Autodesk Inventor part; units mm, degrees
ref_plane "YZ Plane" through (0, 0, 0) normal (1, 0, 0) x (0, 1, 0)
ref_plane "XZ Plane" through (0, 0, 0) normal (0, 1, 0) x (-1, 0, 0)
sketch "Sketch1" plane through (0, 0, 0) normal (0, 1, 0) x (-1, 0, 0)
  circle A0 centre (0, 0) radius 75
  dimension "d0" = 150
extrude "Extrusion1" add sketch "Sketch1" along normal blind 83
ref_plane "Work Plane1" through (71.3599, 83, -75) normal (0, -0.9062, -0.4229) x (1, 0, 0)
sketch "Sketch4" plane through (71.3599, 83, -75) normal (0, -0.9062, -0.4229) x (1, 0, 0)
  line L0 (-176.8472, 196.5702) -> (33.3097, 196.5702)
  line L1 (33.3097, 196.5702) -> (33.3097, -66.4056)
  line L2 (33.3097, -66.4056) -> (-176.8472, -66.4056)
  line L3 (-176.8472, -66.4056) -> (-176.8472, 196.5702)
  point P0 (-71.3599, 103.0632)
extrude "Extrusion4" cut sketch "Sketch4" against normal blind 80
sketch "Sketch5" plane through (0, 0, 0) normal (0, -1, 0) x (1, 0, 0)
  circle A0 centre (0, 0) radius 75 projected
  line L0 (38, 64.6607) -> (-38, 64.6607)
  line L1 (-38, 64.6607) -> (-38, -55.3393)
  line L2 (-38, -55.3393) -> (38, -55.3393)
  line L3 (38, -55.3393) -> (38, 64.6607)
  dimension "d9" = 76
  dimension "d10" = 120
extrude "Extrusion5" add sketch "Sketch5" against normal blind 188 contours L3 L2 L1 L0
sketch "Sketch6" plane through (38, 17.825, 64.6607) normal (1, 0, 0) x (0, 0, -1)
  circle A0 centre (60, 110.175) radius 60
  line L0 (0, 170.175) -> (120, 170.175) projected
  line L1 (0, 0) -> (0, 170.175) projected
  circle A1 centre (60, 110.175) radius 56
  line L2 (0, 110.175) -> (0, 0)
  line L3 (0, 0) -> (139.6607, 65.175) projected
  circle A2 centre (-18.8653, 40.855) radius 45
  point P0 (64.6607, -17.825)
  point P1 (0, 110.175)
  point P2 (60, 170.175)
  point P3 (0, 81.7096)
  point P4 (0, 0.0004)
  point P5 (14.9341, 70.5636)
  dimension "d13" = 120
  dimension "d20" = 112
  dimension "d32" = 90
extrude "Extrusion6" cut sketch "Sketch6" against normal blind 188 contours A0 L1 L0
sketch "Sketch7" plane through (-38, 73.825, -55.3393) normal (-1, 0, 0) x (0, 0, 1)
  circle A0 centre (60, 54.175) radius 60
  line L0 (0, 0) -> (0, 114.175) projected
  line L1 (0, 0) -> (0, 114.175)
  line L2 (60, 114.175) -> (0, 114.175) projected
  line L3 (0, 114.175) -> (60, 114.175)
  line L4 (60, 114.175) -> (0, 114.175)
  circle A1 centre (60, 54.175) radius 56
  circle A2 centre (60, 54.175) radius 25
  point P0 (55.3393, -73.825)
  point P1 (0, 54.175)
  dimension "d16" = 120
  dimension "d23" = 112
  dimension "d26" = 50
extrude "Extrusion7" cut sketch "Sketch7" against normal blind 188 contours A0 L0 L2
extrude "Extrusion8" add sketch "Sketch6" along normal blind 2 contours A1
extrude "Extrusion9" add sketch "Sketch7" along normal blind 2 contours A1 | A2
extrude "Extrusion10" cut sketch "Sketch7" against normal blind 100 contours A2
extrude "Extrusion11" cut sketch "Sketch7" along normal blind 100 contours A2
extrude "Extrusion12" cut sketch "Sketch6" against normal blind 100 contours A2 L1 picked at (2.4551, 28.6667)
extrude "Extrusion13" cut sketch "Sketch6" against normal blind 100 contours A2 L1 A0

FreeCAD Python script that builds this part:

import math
import FreeCAD as App
import Part
import Sketcher
Q = App.Units.Quantity

doc = App.newDocument("Part")
body = doc.addObject("PartDesign::Body", "Body")

# Sketch on XZ plane
sketch1 = body.newObject("Sketcher::SketchObject", "Sketch")
sketch1.AttachmentSupport = (doc.getObject("XZ_Plane"), [""])
sketch1.MapMode = "FlatFace"
sketch1.addGeometry(Part.Circle(App.Vector(0, 0, 0), App.Vector(0, 0, 1), 75), False)
sketch1.addConstraint(Sketcher.Constraint("Coincident", 0, 3, -1, 1))
sketch1.addConstraint(Sketcher.Constraint("Diameter", 0, Q("150 mm")))
pad1 = body.newObject("PartDesign::Pad", "Pad")
pad1.Profile = sketch1
pad1.Length = 83
pad1.Reversed = True

# Sketch on an angled plane
sketch2 = body.newObject("Sketcher::SketchObject", "Sketch001")
sketch2.Placement = App.Placement(App.Vector(71.3599, 83, -75), App.Rotation(App.Vector(1, 0, 0), App.Vector(0, -0.42289094, 0.906180585), App.Vector(0, -0.906180585, -0.42289094), "ZXY"))
sketch2.addGeometry(Part.LineSegment(App.Vector(33.3097, 196.5702, 0), App.Vector(-176.8472, 196.5702, 0)), False)
sketch2.addGeometry(Part.LineSegment(App.Vector(-176.8472, 196.5702, 0), App.Vector(-176.8472, -66.4056, 0)), False)
sketch2.addGeometry(Part.LineSegment(App.Vector(-176.8472, -66.4056, 0), App.Vector(33.3097, -66.4056, 0)), False)
sketch2.addGeometry(Part.LineSegment(App.Vector(33.3097, -66.4056, 0), App.Vector(33.3097, 196.5702, 0)), False)
sketch2.addConstraint(Sketcher.Constraint("Coincident", 0, 2, 1, 1))
sketch2.addConstraint(Sketcher.Constraint("Coincident", 1, 2, 2, 1))
sketch2.addConstraint(Sketcher.Constraint("Coincident", 2, 2, 3, 1))
sketch2.addConstraint(Sketcher.Constraint("Coincident", 3, 2, 0, 1))
sketch2.addConstraint(Sketcher.Constraint("Horizontal", 0))
sketch2.addConstraint(Sketcher.Constraint("Vertical", 1))
sketch2.addConstraint(Sketcher.Constraint("Horizontal", 2))
sketch2.addConstraint(Sketcher.Constraint("Vertical", 3))
sketch2.addConstraint(Sketcher.Constraint("DistanceX", 0, 2, 0, 1, Q("210.157 mm")))
sketch2.addConstraint(Sketcher.Constraint("DistanceY", 1, 2, 1, 1, Q("262.9758 mm")))
sketch2.addConstraint(Sketcher.Constraint("DistanceX", 0, 2, -1, 1, Q("176.8472 mm")))
sketch2.addConstraint(Sketcher.Constraint("DistanceY", -1, 1, 0, 2, Q("196.5702 mm")))
pocket1 = body.newObject("PartDesign::Pocket", "Pocket")
pocket1.Profile = sketch2
pocket1.Length = 80

# Sketch on XZ plane
sketch3 = body.newObject("Sketcher::SketchObject", "Sketch002")
sketch3.AttachmentSupport = (doc.getObject("XZ_Plane"), [""])
sketch3.MapMode = "FlatFace"
sketch3.addGeometry(Part.LineSegment(App.Vector(38, -55.3393, 0), App.Vector(38, 64.6607, 0)), False)
sketch3.addGeometry(Part.LineSegment(App.Vector(38, 64.6607, 0), App.Vector(-38, 64.6607, 0)), False)
sketch3.addGeometry(Part.LineSegment(App.Vector(-38, 64.6607, 0), App.Vector(-38, -55.3393, 0)), False)
sketch3.addGeometry(Part.LineSegment(App.Vector(-38, -55.3393, 0), App.Vector(38, -55.3393, 0)), False)
sketch3.addConstraint(Sketcher.Constraint("Coincident", 0, 2, 1, 1))
sketch3.addConstraint(Sketcher.Constraint("Coincident", 1, 2, 2, 1))
sketch3.addConstraint(Sketcher.Constraint("Coincident", 2, 2, 3, 1))
sketch3.addConstraint(Sketcher.Constraint("Coincident", 3, 2, 0, 1))
sketch3.addConstraint(Sketcher.Constraint("Vertical", 0))
sketch3.addConstraint(Sketcher.Constraint("Horizontal", 1))
sketch3.addConstraint(Sketcher.Constraint("Vertical", 2))
sketch3.addConstraint(Sketcher.Constraint("Horizontal", 3))
sketch3.addConstraint(Sketcher.Constraint("DistanceX", 1, 2, 1, 1, Q("76 mm")))
sketch3.addConstraint(Sketcher.Constraint("DistanceY", 0, 1, 0, 2, Q("120 mm")))
sketch3.addConstraint(Sketcher.Constraint("DistanceX", -1, 1, 0, 2, Q("38 mm")))
sketch3.addConstraint(Sketcher.Constraint("DistanceY", -1, 1, 0, 2, Q("64.6607 mm")))
pad2 = body.newObject("PartDesign::Pad", "Pad001")
pad2.Profile = sketch3
pad2.Length = 188
pad2.Reversed = True

# Sketch on YZ plane
sketch4 = body.newObject("Sketcher::SketchObject", "Sketch003")
sketch4.AttachmentSupport = (doc.getObject("YZ_Plane"), [""])
sketch4.MapMode = "FlatFace"
sketch4.AttachmentOffset = App.Placement(App.Vector(0, 0, 38), App.Rotation())
sketch4.addGeometry(Part.ArcOfCircle(Part.Circle(App.Vector(128, 4.6607, 0), App.Vector(0, 0, 1), 60), math.radians(0), math.radians(90)), False)
sketch4.addGeometry(Part.LineSegment(App.Vector(188, 4.6607, 0), App.Vector(188, 64.6607, 0)), False)
sketch4.addGeometry(Part.LineSegment(App.Vector(188, 64.6607, 0), App.Vector(128, 64.6607, 0)), False)
sketch4.addConstraint(Sketcher.Constraint("Tangent", 0, 1, 1, 1))
sketch4.addConstraint(Sketcher.Constraint("Coincident", 1, 2, 2, 1))
sketch4.addConstraint(Sketcher.Constraint("Tangent", 2, 2, 0, 2))
sketch4.addConstraint(Sketcher.Constraint("Vertical", 1))
sketch4.addConstraint(Sketcher.Constraint("Horizontal", 2))
sketch4.addConstraint(Sketcher.Constraint("Radius", 0, Q("60 mm")))
sketch4.addConstraint(Sketcher.Constraint("DistanceX", -1, 1, 0, 3, Q("128 mm")))
sketch4.addConstraint(Sketcher.Constraint("DistanceY", -1, 1, 0, 3, Q("4.6607 mm")))
pocket2 = body.newObject("PartDesign::Pocket", "Pocket001")
pocket2.Profile = sketch4
pocket2.Length = 188

# Sketch on YZ plane
sketch5 = body.newObject("Sketcher::SketchObject", "Sketch004")
sketch5.AttachmentSupport = (doc.getObject("YZ_Plane"), [""])
sketch5.MapMode = "FlatFace"
sketch5.AttachmentOffset = App.Placement(App.Vector(0, 0, -38), App.Rotation())
sketch5.addGeometry(Part.ArcOfCircle(Part.Circle(App.Vector(128, 4.6607, 0), App.Vector(0, 0, 1), 60), math.radians(-90), math.radians(0)), False)
sketch5.addGeometry(Part.LineSegment(App.Vector(188, 4.6607, 0), App.Vector(188, -55.3393, 0)), False)
sketch5.addGeometry(Part.LineSegment(App.Vector(188, -55.3393, 0), App.Vector(128, -55.3393, 0)), False)
sketch5.addConstraint(Sketcher.Constraint("Tangent", 0, 2, 1, 1))
sketch5.addConstraint(Sketcher.Constraint("Coincident", 1, 2, 2, 1))
sketch5.addConstraint(Sketcher.Constraint("Tangent", 2, 2, 0, 1))
sketch5.addConstraint(Sketcher.Constraint("Vertical", 1))
sketch5.addConstraint(Sketcher.Constraint("Horizontal", 2))
sketch5.addConstraint(Sketcher.Constraint("Radius", 0, Q("60 mm")))
sketch5.addConstraint(Sketcher.Constraint("DistanceX", -1, 1, 0, 3, Q("128 mm")))
sketch5.addConstraint(Sketcher.Constraint("DistanceY", -1, 1, 0, 3, Q("4.6607 mm")))
pocket3 = body.newObject("PartDesign::Pocket", "Pocket002")
pocket3.Profile = sketch5
pocket3.Length = 188
pocket3.Reversed = True

# Sketch on YZ plane
sketch6 = body.newObject("Sketcher::SketchObject", "Sketch005")
sketch6.AttachmentSupport = (doc.getObject("YZ_Plane"), [""])
sketch6.MapMode = "FlatFace"
sketch6.AttachmentOffset = App.Placement(App.Vector(0, 0, 38), App.Rotation())
sketch6.addGeometry(Part.Circle(App.Vector(128, 4.6607, 0), App.Vector(0, 0, 1), 56), False)
sketch6.addConstraint(Sketcher.Constraint("Diameter", 0, Q("112 mm")))
sketch6.addConstraint(Sketcher.Constraint("DistanceX", -1, 1, 0, 3, Q("128 mm")))
sketch6.addConstraint(Sketcher.Constraint("DistanceY", -1, 1, 0, 3, Q("4.6607 mm")))
pad3 = body.newObject("PartDesign::Pad", "Pad002")
pad3.Profile = sketch6
pad3.Length = 2

# Sketch on YZ plane
sketch7 = body.newObject("Sketcher::SketchObject", "Sketch006")
sketch7.AttachmentSupport = (doc.getObject("YZ_Plane"), [""])
sketch7.MapMode = "FlatFace"
sketch7.AttachmentOffset = App.Placement(App.Vector(0, 0, -38), App.Rotation())
sketch7.addGeometry(Part.Circle(App.Vector(128, 4.6607, 0), App.Vector(0, 0, 1), 56), False)
sketch7.addConstraint(Sketcher.Constraint("Diameter", 0, Q("112 mm")))
sketch7.addConstraint(Sketcher.Constraint("DistanceX", -1, 1, 0, 3, Q("128 mm")))
sketch7.addConstraint(Sketcher.Constraint("DistanceY", -1, 1, 0, 3, Q("4.6607 mm")))
pad4 = body.newObject("PartDesign::Pad", "Pad003")
pad4.Profile = sketch7
pad4.Length = 2
pad4.Reversed = True

# Sketch on YZ plane
sketch8 = body.newObject("Sketcher::SketchObject", "Sketch007")
sketch8.AttachmentSupport = (doc.getObject("YZ_Plane"), [""])
sketch8.MapMode = "FlatFace"
sketch8.AttachmentOffset = App.Placement(App.Vector(0, 0, -38), App.Rotation())
sketch8.addGeometry(Part.Circle(App.Vector(128, 4.6607, 0), App.Vector(0, 0, 1), 25), False)
sketch8.addConstraint(Sketcher.Constraint("Diameter", 0, Q("50 mm")))
sketch8.addConstraint(Sketcher.Constraint("DistanceX", -1, 1, 0, 3, Q("128 mm")))
sketch8.addConstraint(Sketcher.Constraint("DistanceY", -1, 1, 0, 3, Q("4.6607 mm")))
pocket4 = body.newObject("PartDesign::Pocket", "Pocket003")
pocket4.Profile = sketch8
pocket4.Length = 100
pocket4.Reversed = True

# Sketch on YZ plane
sketch9 = body.newObject("Sketcher::SketchObject", "Sketch008")
sketch9.AttachmentSupport = (doc.getObject("YZ_Plane"), [""])
sketch9.MapMode = "FlatFace"
sketch9.AttachmentOffset = App.Placement(App.Vector(0, 0, -38), App.Rotation())
sketch9.addGeometry(Part.Circle(App.Vector(128, 4.6607, 0), App.Vector(0, 0, 1), 25), False)
sketch9.addConstraint(Sketcher.Constraint("Diameter", 0, Q("50 mm")))
sketch9.addConstraint(Sketcher.Constraint("DistanceX", -1, 1, 0, 3, Q("128 mm")))
sketch9.addConstraint(Sketcher.Constraint("DistanceY", -1, 1, 0, 3, Q("4.6607 mm")))
pocket5 = body.newObject("PartDesign::Pocket", "Pocket004")
pocket5.Profile = sketch9
pocket5.Length = 100

# Sketch on YZ plane
sketch10 = body.newObject("Sketcher::SketchObject", "Sketch009")
sketch10.AttachmentSupport = (doc.getObject("YZ_Plane"), [""])
sketch10.MapMode = "FlatFace"
sketch10.AttachmentOffset = App.Placement(App.Vector(0, 0, 38), App.Rotation())
sketch10.addGeometry(Part.ArcOfCircle(Part.Circle(App.Vector(58.68, 83.526, 0), App.Vector(0, 0, 1), 45), math.radians(-155.214286), math.radians(-24.785914)), False)
sketch10.addGeometry(Part.LineSegment(App.Vector(99.534626, 64.6607, 0), App.Vector(17.825, 64.6607, 0)), False)
sketch10.addConstraint(Sketcher.Constraint("Coincident", 0, 1, 1, 2))
sketch10.addConstraint(Sketcher.Constraint("Coincident", 1, 1, 0, 2))
sketch10.addConstraint(Sketcher.Constraint("Horizontal", 1))
sketch10.addConstraint(Sketcher.Constraint("Radius", 0, Q("45 mm")))
sketch10.addConstraint(Sketcher.Constraint("DistanceX", -1, 1, 0, 3, Q("58.68 mm")))
sketch10.addConstraint(Sketcher.Constraint("DistanceX", 1, 2, 1, 1, Q("81.7096 mm")))
sketch10.addConstraint(Sketcher.Constraint("DistanceY", -1, 1, 0, 3, Q("83.526 mm")))
pocket6 = body.newObject("PartDesign::Pocket", "Pocket005")
pocket6.Profile = sketch10
pocket6.Length = 100

# Sketch on YZ plane
sketch11 = body.newObject("Sketcher::SketchObject", "Sketch010")
sketch11.AttachmentSupport = (doc.getObject("YZ_Plane"), [""])
sketch11.MapMode = "FlatFace"
sketch11.AttachmentOffset = App.Placement(App.Vector(0, 0, 38), App.Rotation())
sketch11.addGeometry(Part.ArcOfCircle(Part.Circle(App.Vector(58.68, 83.526, 0), App.Vector(0, 0, 1), 45), math.radians(-48.685594), math.radians(-24.785914)), False)
sketch11.addGeometry(Part.ArcOfCircle(Part.Circle(App.Vector(128, 4.6607, 0), App.Vector(0, 0, 1), 60), math.radians(90), math.radians(131.314406)), False)
sketch11.addGeometry(Part.LineSegment(App.Vector(128, 64.6607, 0), App.Vector(99.534626, 64.6607, 0)), False)
sketch11.addConstraint(Sketcher.Constraint("Tangent", 0, 1, 1, 2))
sketch11.addConstraint(Sketcher.Constraint("Tangent", 1, 1, 2, 1))
sketch11.addConstraint(Sketcher.Constraint("Coincident", 2, 2, 0, 2))
sketch11.addConstraint(Sketcher.Constraint("Horizontal", 2))
sketch11.addConstraint(Sketcher.Constraint("Radius", 0, Q("45 mm")))
sketch11.addConstraint(Sketcher.Constraint("Radius", 1, Q("60 mm")))
sketch11.addConstraint(Sketcher.Constraint("DistanceX", -1, 1, 1, 3, Q("128 mm")))
sketch11.addConstraint(Sketcher.Constraint("DistanceX", -1, 1, 0, 3, Q("58.68 mm")))
sketch11.addConstraint(Sketcher.Constraint("DistanceY", -1, 1, 0, 3, Q("83.526 mm")))
pocket7 = body.newObject("PartDesign::Pocket", "Pocket006")
pocket7.Profile = sketch11
pocket7.Length = 100

doc.recompute()
